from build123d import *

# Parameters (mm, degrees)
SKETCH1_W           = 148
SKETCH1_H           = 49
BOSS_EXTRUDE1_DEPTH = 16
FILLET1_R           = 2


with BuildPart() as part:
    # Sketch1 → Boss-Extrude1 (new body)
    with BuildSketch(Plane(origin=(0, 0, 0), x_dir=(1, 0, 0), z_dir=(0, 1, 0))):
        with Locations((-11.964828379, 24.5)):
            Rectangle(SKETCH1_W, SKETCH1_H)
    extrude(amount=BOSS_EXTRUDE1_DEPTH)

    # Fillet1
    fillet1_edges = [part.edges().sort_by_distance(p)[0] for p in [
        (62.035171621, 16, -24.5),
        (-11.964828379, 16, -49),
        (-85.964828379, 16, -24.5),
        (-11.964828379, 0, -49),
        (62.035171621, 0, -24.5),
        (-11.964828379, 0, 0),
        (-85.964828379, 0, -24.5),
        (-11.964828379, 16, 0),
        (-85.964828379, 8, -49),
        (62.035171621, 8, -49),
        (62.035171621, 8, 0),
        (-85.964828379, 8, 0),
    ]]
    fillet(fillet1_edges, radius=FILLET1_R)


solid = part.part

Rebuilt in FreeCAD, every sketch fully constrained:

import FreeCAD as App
import Part
import Sketcher

V = App.Vector
Q = App.Units.Quantity


def add_polygon(sketch, points):
    """Adds a closed chain of lines whose ends are joined by coincident constraints."""
    first, n = sketch.GeometryCount, len(points)
    for a, b in zip(points, points[1:] + points[:1]):
        sketch.addGeometry(Part.LineSegment(App.Vector(*a, 0), App.Vector(*b, 0)), False)
    for i in range(n):
        sketch.addConstraint(Sketcher.Constraint("Coincident", first + i, 2, first + (i + 1) % n, 1))

doc = App.newDocument("Part")
body = doc.addObject("PartDesign::Body", "Body")

# Sketch on XZ plane
sketch1 = doc.addObject("Sketcher::SketchObject", "Sketch")
body.addObject(sketch1)
sketch1.AttachmentSupport = (doc.XZ_Plane, [""])
sketch1.MapMode = "FlatFace"
add_polygon(sketch1, [(-86, -49), (-86, 0), (62, 0), (62, -49)])  # lines 0-3
sketch1.addConstraint([
    Sketcher.Constraint("Vertical", 0),
    Sketcher.Constraint("Horizontal", 1),
    Sketcher.Constraint("Vertical", 2),
    Sketcher.Constraint("Horizontal", 3),
    Sketcher.Constraint("PointOnObject", 0, 2, -1),
    Sketcher.Constraint("DistanceX", 1, 1, 1, 2, Q("148 mm")),
    Sketcher.Constraint("DistanceY", 0, 1, 0, 2, Q("49 mm")),
    Sketcher.Constraint("DistanceX", 0, 2, -1, 1, Q("85.964828 mm")),
])
pad1 = doc.addObject("PartDesign::Pad", "Pad")
body.addObject(pad1)
pad1.Profile = sketch1
pad1.Length = 16
pad1.Reversed = True
doc.recompute()

fillet = doc.addObject("PartDesign::Fillet", "Fillet")
body.addObject(fillet)
fillet.Base = (pad1, ["Edge1"])
fillet.UseAllEdges = True
fillet.Radius = 2

doc.recompute()
